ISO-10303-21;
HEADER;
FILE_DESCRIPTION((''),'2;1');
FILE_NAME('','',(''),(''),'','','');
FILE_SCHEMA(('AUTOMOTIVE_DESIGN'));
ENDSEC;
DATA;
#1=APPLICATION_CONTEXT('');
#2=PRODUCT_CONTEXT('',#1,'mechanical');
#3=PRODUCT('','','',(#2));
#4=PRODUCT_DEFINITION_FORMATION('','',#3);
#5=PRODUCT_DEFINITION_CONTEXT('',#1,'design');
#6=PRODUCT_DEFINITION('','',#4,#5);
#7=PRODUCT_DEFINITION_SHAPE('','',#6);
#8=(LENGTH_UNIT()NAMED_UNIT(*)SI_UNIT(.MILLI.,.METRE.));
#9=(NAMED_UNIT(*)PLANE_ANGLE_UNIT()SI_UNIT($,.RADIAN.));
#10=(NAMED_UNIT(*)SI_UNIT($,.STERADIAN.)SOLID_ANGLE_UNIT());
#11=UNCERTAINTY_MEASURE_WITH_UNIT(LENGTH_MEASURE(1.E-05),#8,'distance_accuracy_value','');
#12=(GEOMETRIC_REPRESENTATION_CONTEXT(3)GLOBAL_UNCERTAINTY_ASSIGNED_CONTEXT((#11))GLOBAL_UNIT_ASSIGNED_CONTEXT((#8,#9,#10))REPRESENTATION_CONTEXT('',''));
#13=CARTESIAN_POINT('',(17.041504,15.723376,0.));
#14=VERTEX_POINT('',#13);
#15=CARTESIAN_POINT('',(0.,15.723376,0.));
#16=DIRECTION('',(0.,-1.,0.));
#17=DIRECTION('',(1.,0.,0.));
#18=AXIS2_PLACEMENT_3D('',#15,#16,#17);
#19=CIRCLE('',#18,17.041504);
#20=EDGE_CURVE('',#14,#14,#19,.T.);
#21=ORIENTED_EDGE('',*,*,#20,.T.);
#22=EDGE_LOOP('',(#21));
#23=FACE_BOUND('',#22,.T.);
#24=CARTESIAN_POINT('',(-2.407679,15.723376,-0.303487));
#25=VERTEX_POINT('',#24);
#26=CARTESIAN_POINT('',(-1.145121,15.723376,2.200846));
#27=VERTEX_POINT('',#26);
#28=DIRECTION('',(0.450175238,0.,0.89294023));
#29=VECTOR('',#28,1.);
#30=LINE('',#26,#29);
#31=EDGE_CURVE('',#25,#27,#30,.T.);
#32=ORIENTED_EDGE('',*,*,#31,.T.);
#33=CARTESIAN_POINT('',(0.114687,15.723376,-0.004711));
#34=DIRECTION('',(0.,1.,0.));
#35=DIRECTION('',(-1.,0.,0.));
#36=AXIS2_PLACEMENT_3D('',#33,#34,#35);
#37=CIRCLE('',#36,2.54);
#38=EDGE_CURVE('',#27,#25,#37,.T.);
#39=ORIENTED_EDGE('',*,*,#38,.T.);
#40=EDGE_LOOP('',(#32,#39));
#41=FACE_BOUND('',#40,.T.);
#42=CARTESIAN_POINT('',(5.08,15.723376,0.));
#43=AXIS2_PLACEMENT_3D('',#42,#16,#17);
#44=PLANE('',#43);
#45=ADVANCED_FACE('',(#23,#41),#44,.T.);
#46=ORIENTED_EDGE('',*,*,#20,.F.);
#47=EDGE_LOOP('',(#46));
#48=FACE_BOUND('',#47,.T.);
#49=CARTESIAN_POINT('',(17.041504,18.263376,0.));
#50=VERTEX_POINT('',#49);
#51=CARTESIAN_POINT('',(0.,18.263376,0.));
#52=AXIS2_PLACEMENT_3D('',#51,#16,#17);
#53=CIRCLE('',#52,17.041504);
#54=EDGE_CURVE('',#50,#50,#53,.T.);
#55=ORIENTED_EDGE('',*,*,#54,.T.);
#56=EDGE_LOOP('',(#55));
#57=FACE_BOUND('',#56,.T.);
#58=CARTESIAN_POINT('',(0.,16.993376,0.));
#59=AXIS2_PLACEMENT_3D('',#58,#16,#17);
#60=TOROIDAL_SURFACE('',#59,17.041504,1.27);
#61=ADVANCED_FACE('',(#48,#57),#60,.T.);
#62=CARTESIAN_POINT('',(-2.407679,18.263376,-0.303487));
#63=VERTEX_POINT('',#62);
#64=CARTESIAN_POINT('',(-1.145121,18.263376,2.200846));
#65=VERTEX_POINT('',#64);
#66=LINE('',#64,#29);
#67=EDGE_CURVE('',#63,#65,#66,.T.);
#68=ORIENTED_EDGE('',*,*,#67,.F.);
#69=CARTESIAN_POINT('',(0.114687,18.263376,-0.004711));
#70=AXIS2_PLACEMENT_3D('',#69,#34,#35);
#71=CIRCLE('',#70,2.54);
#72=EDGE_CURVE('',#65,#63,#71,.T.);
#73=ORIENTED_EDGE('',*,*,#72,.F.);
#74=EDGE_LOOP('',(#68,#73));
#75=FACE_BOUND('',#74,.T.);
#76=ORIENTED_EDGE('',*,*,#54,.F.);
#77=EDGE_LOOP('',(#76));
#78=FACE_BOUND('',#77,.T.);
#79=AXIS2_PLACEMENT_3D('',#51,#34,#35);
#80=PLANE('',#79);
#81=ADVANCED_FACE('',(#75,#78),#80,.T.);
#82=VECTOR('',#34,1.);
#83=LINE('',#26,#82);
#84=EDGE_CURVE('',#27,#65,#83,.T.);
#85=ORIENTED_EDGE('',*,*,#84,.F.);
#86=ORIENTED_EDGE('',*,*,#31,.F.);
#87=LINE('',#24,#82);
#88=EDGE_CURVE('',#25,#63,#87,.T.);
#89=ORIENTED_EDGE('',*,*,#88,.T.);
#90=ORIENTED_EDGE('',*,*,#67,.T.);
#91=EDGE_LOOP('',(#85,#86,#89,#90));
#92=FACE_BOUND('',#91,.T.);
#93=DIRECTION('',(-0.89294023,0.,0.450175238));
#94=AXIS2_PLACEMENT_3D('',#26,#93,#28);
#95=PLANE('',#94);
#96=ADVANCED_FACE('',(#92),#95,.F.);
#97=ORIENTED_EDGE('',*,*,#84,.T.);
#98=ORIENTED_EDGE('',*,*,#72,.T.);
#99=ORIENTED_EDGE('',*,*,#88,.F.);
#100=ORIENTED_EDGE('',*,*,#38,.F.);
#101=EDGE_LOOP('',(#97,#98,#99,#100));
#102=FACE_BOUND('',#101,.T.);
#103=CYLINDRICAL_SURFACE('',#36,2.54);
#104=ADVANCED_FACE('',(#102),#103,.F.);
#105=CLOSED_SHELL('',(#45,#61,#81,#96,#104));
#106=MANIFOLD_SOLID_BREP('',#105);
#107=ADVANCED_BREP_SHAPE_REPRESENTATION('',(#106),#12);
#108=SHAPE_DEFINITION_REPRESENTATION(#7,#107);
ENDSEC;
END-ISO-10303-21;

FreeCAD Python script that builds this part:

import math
import FreeCAD as App
import Part
import Sketcher
Q = App.Units.Quantity

doc = App.newDocument("Part")
params = doc.addObject("Spreadsheet::Sheet", "Params")
for row, (alias, value) in enumerate([
    ("sketch1_radius", "0.05 in"),
    ("revolution_angle", "360 deg"),
    ("sketch2_radius", "0.1 in"),
], start=1):
    params.set(f"A{row}", alias)
    params.set(f"B{row}", "=" + value)
    params.setAlias(f"B{row}", alias)

body = doc.addObject("PartDesign::Body", "Body")

sketch1 = body.newObject("Sketcher::SketchObject", "Sketch")
sketch1.AttachmentSupport = (doc.getObject("XY_Plane"), [""])
sketch1.MapMode = "FlatFace"
sketch1.addGeometry([
    Part.LineSegment(App.Vector(0, 18.3, 0), App.Vector(0, 15.7, 0)),
    Part.LineSegment(App.Vector(0, 15.7, 0), App.Vector(17, 15.7, 0)),
    Part.ArcOfCircle(Part.Circle(App.Vector(17, 17, 0), App.Vector(0, 0, 1), 1.3), math.radians(-90), math.radians(90)),
    Part.LineSegment(App.Vector(17, 18.3, 0), App.Vector(0, 18.3, 0)),
], False)
sketch1.addConstraint([
    Sketcher.Constraint("Coincident", 0, 2, 1, 1),
    Sketcher.Constraint("Tangent", 1, 2, 2, 1),
    Sketcher.Constraint("Tangent", 2, 2, 3, 1),
    Sketcher.Constraint("Coincident", 3, 2, 0, 1),
    Sketcher.Constraint("Vertical", 0),
    Sketcher.Constraint("Horizontal", 1),
    Sketcher.Constraint("Horizontal", 3),
    Sketcher.Constraint("PointOnObject", 0, 2, -2),
    Sketcher.Constraint("Radius", 2, Q("0.05 in")),
    Sketcher.Constraint("DistanceX", 1, 1, 1, 2, Q("17.041504 mm")),
    Sketcher.Constraint("DistanceY", -1, 1, 2, 3, Q("16.993376 mm")),
])
sketch1.setExpression("Constraints[8]", "Params.sketch1_radius")
revolution = body.newObject("PartDesign::Revolution", "Revolution")
revolution.Profile = sketch1
revolution.ReferenceAxis = (sketch1, ["V_Axis"])
revolution.setExpression("Angle", "Params.revolution_angle")

sketch2 = body.newObject("Sketcher::SketchObject", "Sketch001")
sketch2.AttachmentSupport = (doc.getObject("XZ_Plane"), [""])
sketch2.MapMode = "FlatFace"
sketch2.AttachmentOffset = App.Placement(App.Vector(0, 0, -18.263376), App.Rotation())
sketch2.addGeometry([
    Part.LineSegment(App.Vector(-2.4, -0.3, 0), App.Vector(-1.1, 2.2, 0)),
    Part.ArcOfCircle(Part.Circle(App.Vector(0.1, 0, 0), App.Vector(0, 0, 1), 2.5), math.radians(-173), math.radians(120)),
], False)
sketch2.addConstraint([
    Sketcher.Constraint("Coincident", 0, 1, 1, 1),
    Sketcher.Constraint("Coincident", 1, 2, 0, 2),
    Sketcher.Constraint("Radius", 1, Q("0.1 in")),
    Sketcher.Constraint("Distance", 0, Q("2.804592 mm")),
    Sketcher.Constraint("DistanceY", 1, 3, -1, 1, Q("0.004711 mm")),
    Sketcher.Constraint("DistanceX", 0, 1, -1, 1, Q("2.407679 mm")),
    Sketcher.Constraint("DistanceX", 1, 2, -1, 1, Q("1.145121 mm")),
])
sketch2.setExpression("Constraints[2]", "Params.sketch2_radius")
pocket1 = body.newObject("PartDesign::Pocket", "Pocket")
pocket1.Profile = sketch2
pocket1.Type = "ThroughAll"
pocket1.Reversed = True

doc.recompute()
